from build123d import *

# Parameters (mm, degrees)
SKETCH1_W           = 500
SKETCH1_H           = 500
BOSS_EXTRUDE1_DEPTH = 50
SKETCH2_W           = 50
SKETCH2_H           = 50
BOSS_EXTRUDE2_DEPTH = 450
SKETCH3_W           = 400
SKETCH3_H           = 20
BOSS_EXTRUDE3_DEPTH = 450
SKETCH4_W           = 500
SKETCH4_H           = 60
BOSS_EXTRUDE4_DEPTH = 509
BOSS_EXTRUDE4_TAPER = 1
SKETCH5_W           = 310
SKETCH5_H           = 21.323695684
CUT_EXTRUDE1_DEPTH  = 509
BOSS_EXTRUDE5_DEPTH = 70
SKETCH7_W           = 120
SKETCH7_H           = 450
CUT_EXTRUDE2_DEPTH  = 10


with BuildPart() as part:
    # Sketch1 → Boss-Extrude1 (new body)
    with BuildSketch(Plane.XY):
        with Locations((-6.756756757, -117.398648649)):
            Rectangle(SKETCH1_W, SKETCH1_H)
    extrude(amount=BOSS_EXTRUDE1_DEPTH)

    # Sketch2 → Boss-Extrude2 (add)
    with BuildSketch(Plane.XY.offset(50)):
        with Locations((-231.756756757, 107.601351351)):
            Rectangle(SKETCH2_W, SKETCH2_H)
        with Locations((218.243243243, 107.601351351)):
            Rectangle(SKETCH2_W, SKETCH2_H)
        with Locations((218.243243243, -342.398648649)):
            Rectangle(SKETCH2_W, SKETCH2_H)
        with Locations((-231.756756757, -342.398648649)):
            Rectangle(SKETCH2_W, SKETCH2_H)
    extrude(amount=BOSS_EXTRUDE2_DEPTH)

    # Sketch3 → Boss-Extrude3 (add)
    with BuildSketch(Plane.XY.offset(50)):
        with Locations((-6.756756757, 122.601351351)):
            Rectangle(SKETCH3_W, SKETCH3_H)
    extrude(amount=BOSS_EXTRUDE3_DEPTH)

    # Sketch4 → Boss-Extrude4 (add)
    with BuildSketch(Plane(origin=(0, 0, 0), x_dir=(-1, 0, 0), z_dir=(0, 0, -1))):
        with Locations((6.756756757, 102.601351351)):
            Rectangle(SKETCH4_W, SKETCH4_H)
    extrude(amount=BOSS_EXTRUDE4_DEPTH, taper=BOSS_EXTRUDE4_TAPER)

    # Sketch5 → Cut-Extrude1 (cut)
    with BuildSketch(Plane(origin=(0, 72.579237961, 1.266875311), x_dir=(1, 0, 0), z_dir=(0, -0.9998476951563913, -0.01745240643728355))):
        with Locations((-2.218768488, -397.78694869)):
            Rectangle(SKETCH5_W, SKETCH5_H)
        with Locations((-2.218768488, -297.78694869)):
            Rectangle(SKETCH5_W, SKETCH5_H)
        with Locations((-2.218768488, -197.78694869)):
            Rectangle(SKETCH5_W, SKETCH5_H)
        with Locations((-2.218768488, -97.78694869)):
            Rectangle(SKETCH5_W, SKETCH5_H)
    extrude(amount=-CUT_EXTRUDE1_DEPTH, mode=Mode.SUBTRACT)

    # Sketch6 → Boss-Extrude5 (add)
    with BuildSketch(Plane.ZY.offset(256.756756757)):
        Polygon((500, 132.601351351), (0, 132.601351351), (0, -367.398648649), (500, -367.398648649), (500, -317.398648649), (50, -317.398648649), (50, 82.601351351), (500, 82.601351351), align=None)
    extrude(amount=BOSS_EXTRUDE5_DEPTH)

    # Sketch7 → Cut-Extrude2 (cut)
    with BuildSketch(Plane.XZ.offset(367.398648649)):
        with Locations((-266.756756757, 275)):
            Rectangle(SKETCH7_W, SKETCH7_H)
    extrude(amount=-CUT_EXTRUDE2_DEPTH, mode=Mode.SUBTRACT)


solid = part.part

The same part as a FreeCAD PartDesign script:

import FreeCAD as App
import Part
import Sketcher
from FreeCAD import Vector
Q = App.Units.Quantity


def add_polygon(sketch, points):
    """Adds a closed chain of lines whose ends are joined by coincident constraints."""
    first, n = sketch.GeometryCount, len(points)
    for a, b in zip(points, points[1:] + points[:1]):
        sketch.addGeometry(Part.LineSegment(App.Vector(*a, 0), App.Vector(*b, 0)), False)
    for i in range(n):
        sketch.addConstraint(Sketcher.Constraint("Coincident", first + i, 2, first + (i + 1) % n, 1))

doc = App.newDocument("Part")
body = doc.addObject("PartDesign::Body", "Body")

sketch1 = body.newObject("Sketcher::SketchObject", "Sketch")
sketch1.AttachmentSupport = (doc.getObject("XY_Plane"), [""])
sketch1.MapMode = "FlatFace"
add_polygon(sketch1, [(-257, 133), (-257, -367), (243, -367), (243, 133)])
sketch1.addConstraint(Sketcher.Constraint("Vertical", 0))
sketch1.addConstraint(Sketcher.Constraint("Horizontal", 1))
sketch1.addConstraint(Sketcher.Constraint("Vertical", 2))
sketch1.addConstraint(Sketcher.Constraint("Horizontal", 3))
sketch1.addConstraint(Sketcher.Constraint("Equal", 3, 0))
sketch1.addConstraint(Sketcher.Constraint("DistanceX", 1, 1, 1, 2, Q("500 mm")))
sketch1.addConstraint(Sketcher.Constraint("DistanceY", 0, 2, -1, 1, Q("367.398649 mm")))
sketch1.addConstraint(Sketcher.Constraint("DistanceX", 0, 2, -1, 1, Q("256.756757 mm")))
pad1 = body.newObject("PartDesign::Pad", "Pad")
pad1.Profile = sketch1
pad1.Length = 50

sketch2 = body.newObject("Sketcher::SketchObject", "Sketch001")
sketch2.AttachmentSupport = (doc.getObject("XY_Plane"), [""])
sketch2.MapMode = "FlatFace"
sketch2.AttachmentOffset = App.Placement(Vector(0, 0, 50), App.Rotation())
add_polygon(sketch2, [(-257, 133), (-257, 83), (-207, 83), (-207, 133)])
add_polygon(sketch2, [(193, 133), (193, 83), (243, 83), (243, 133)])
add_polygon(sketch2, [(193, -317), (193, -367), (243, -367), (243, -317)])
add_polygon(sketch2, [(-257, -317), (-257, -367), (-207, -367), (-207, -317)])
sketch2.addConstraint(Sketcher.Constraint("Vertical", 0))
sketch2.addConstraint(Sketcher.Constraint("Horizontal", 1))
sketch2.addConstraint(Sketcher.Constraint("Vertical", 2))
sketch2.addConstraint(Sketcher.Constraint("Horizontal", 3))
sketch2.addConstraint(Sketcher.Constraint("Vertical", 4))
sketch2.addConstraint(Sketcher.Constraint("Horizontal", 5))
sketch2.addConstraint(Sketcher.Constraint("Vertical", 6))
sketch2.addConstraint(Sketcher.Constraint("Horizontal", 7))
sketch2.addConstraint(Sketcher.Constraint("Vertical", 8))
sketch2.addConstraint(Sketcher.Constraint("Horizontal", 9))
sketch2.addConstraint(Sketcher.Constraint("Vertical", 10))
sketch2.addConstraint(Sketcher.Constraint("Horizontal", 11))
sketch2.addConstraint(Sketcher.Constraint("Vertical", 12))
sketch2.addConstraint(Sketcher.Constraint("Horizontal", 13))
sketch2.addConstraint(Sketcher.Constraint("Vertical", 14))
sketch2.addConstraint(Sketcher.Constraint("Horizontal", 15))
sketch2.addConstraint(Sketcher.Constraint("Horizontal", 1, 2, 4, 2))
sketch2.addConstraint(Sketcher.Constraint("Horizontal", 3, 2, 6, 2))
sketch2.addConstraint(Sketcher.Constraint("Horizontal", 9, 2, 12, 2))
sketch2.addConstraint(Sketcher.Constraint("Horizontal", 11, 2, 14, 2))
sketch2.addConstraint(Sketcher.Constraint("Vertical", 7, 2, 8, 2))
sketch2.addConstraint(Sketcher.Constraint("Vertical", 6, 2, 9, 2))
sketch2.addConstraint(Sketcher.Constraint("Vertical", 3, 2, 12, 2))
sketch2.addConstraint(Sketcher.Constraint("Vertical", 2, 2, 13, 2))
sketch2.addConstraint(Sketcher.Constraint("Equal", 3, 5))
sketch2.addConstraint(Sketcher.Constraint("Equal", 15, 0))
sketch2.addConstraint(Sketcher.Constraint("Equal", 6, 8))
sketch2.addConstraint(Sketcher.Constraint("DistanceX", 1, 1, 1, 2, Q("50 mm")))
sketch2.addConstraint(Sketcher.Constraint("DistanceX", 1, 2, 4, 2, Q("400 mm")))
sketch2.addConstraint(Sketcher.Constraint("DistanceY", 8, 2, 4, 2, Q("450 mm")))
sketch2.addConstraint(Sketcher.Constraint("DistanceY", -1, 1, 0, 2, Q("82.601351 mm")))
sketch2.addConstraint(Sketcher.Constraint("DistanceX", 0, 2, -1, 1, Q("256.756757 mm")))
pad2 = body.newObject("PartDesign::Pad", "Pad001")
pad2.Profile = sketch2
pad2.Length = 450

sketch3 = body.newObject("Sketcher::SketchObject", "Sketch002")
sketch3.AttachmentSupport = (doc.getObject("XY_Plane"), [""])
sketch3.MapMode = "FlatFace"
sketch3.AttachmentOffset = App.Placement(Vector(0, 0, 50), App.Rotation())
add_polygon(sketch3, [(-207, 133), (-207, 113), (193, 113), (193, 133)])
sketch3.addConstraint(Sketcher.Constraint("Vertical", 0))
sketch3.addConstraint(Sketcher.Constraint("Horizontal", 1))
sketch3.addConstraint(Sketcher.Constraint("Vertical", 2))
sketch3.addConstraint(Sketcher.Constraint("Horizontal", 3))
sketch3.addConstraint(Sketcher.Constraint("DistanceX", 1, 1, 1, 2, Q("400 mm")))
sketch3.addConstraint(Sketcher.Constraint("DistanceY", 0, 2, 0, 1, Q("20 mm")))
sketch3.addConstraint(Sketcher.Constraint("DistanceY", -1, 1, 0, 2, Q("112.601351 mm")))
sketch3.addConstraint(Sketcher.Constraint("DistanceX", 0, 2, -1, 1, Q("206.756757 mm")))
pad3 = body.newObject("PartDesign::Pad", "Pad002")
pad3.Profile = sketch3
pad3.Length = 450

sketch4 = body.newObject("Sketcher::SketchObject", "Sketch003")
sketch4.AttachmentSupport = (doc.getObject("XY_Plane"), [""])
sketch4.MapMode = "FlatFace"
add_polygon(sketch4, [(243, 133), (243, 73), (-257, 73), (-257, 133)])
sketch4.addConstraint(Sketcher.Constraint("Vertical", 0))
sketch4.addConstraint(Sketcher.Constraint("Horizontal", 1))
sketch4.addConstraint(Sketcher.Constraint("Vertical", 2))
sketch4.addConstraint(Sketcher.Constraint("Horizontal", 3))
sketch4.addConstraint(Sketcher.Constraint("DistanceX", 1, 2, 1, 1, Q("500 mm")))
sketch4.addConstraint(Sketcher.Constraint("DistanceY", 0, 2, 0, 1, Q("60 mm")))
sketch4.addConstraint(Sketcher.Constraint("DistanceY", -1, 1, 0, 2, Q("72.601351 mm")))
sketch4.addConstraint(Sketcher.Constraint("DistanceX", -1, 1, 0, 2, Q("243.243243 mm")))
pad4 = body.newObject("PartDesign::Pad", "Pad003")
pad4.Profile = sketch4
pad4.Length = 509
pad4.Reversed = True
pad4.TaperAngle = -1

sketch5 = body.newObject("Sketcher::SketchObject", "Sketch004")
sketch5.Placement = App.Placement(Vector(0, 72.579238, 1.266875), App.Rotation(Vector(1, 0, 0), Vector(0, -0.017452406, 0.999847695), Vector(0, -0.999847695, -0.017452406), "ZXY"))
add_polygon(sketch5, [(-157, -387), (-157, -408), (153, -408), (153, -387)])
add_polygon(sketch5, [(-157, -287), (-157, -308), (153, -308), (153, -287)])
add_polygon(sketch5, [(-157, -187), (-157, -208), (153, -208), (153, -187)])
add_polygon(sketch5, [(-157, -87), (-157, -108), (153, -108), (153, -87)])
sketch5.addConstraint(Sketcher.Constraint("Vertical", 0))
sketch5.addConstraint(Sketcher.Constraint("Horizontal", 1))
sketch5.addConstraint(Sketcher.Constraint("Vertical", 2))
sketch5.addConstraint(Sketcher.Constraint("Horizontal", 3))
sketch5.addConstraint(Sketcher.Constraint("Vertical", 4))
sketch5.addConstraint(Sketcher.Constraint("Horizontal", 5))
sketch5.addConstraint(Sketcher.Constraint("Vertical", 6))
sketch5.addConstraint(Sketcher.Constraint("Horizontal", 7))
sketch5.addConstraint(Sketcher.Constraint("Vertical", 8))
sketch5.addConstraint(Sketcher.Constraint("Horizontal", 9))
sketch5.addConstraint(Sketcher.Constraint("Vertical", 10))
sketch5.addConstraint(Sketcher.Constraint("Horizontal", 11))
sketch5.addConstraint(Sketcher.Constraint("Vertical", 12))
sketch5.addConstraint(Sketcher.Constraint("Horizontal", 13))
sketch5.addConstraint(Sketcher.Constraint("Vertical", 14))
sketch5.addConstraint(Sketcher.Constraint("Horizontal", 15))
sketch5.addConstraint(Sketcher.Constraint("Vertical", 3, 2, 4, 2))
sketch5.addConstraint(Sketcher.Constraint("Vertical", 2, 2, 5, 2))
sketch5.addConstraint(Sketcher.Constraint("Vertical", 7, 2, 8, 2))
sketch5.addConstraint(Sketcher.Constraint("Vertical", 6, 2, 9, 2))
sketch5.addConstraint(Sketcher.Constraint("Vertical", 11, 2, 12, 2))
sketch5.addConstraint(Sketcher.Constraint("Vertical", 10, 2, 13, 2))
sketch5.addConstraint(Sketcher.Constraint("Equal", 2, 4))
sketch5.addConstraint(Sketcher.Constraint("Equal", 6, 8))
sketch5.addConstraint(Sketcher.Constraint("Equal", 10, 12))
sketch5.addConstraint(Sketcher.Constraint("DistanceX", 1, 1, 1, 2, Q("310 mm")))
sketch5.addConstraint(Sketcher.Constraint("DistanceY", 0, 2, 4, 2, Q("100 mm")))
sketch5.addConstraint(Sketcher.Constraint("DistanceY", 4, 2, 8, 2, Q("100 mm")))
sketch5.addConstraint(Sketcher.Constraint("DistanceY", 8, 2, 12, 2, Q("100 mm")))
sketch5.addConstraint(Sketcher.Constraint("DistanceY", 2, 2, -1, 1, Q("387.125101 mm")))
sketch5.addConstraint(Sketcher.Constraint("DistanceY", 0, 2, 0, 1, Q("21.323696 mm")))
sketch5.addConstraint(Sketcher.Constraint("DistanceX", 0, 2, -1, 1, Q("157.218768 mm")))
pocket1 = body.newObject("PartDesign::Pocket", "Pocket")
pocket1.Profile = sketch5
pocket1.Length = 509

sketch6 = body.newObject("Sketcher::SketchObject", "Sketch005")
sketch6.AttachmentSupport = (doc.getObject("YZ_Plane"), [""])
sketch6.MapMode = "FlatFace"
sketch6.AttachmentOffset = App.Placement(Vector(0, 0, -256.756757), App.Rotation())
add_polygon(sketch6, [(133, 500), (133, 0), (-367, 0), (-367, 500), (-317, 500), (-317, 50), (83, 50), (83, 500)])
sketch6.addConstraint(Sketcher.Constraint("Vertical", 0))
sketch6.addConstraint(Sketcher.Constraint("Horizontal", 1))
sketch6.addConstraint(Sketcher.Constraint("Vertical", 2))
sketch6.addConstraint(Sketcher.Constraint("Horizontal", 3))
sketch6.addConstraint(Sketcher.Constraint("Vertical", 4))
sketch6.addConstraint(Sketcher.Constraint("Horizontal", 5))
sketch6.addConstraint(Sketcher.Constraint("Vertical", 6))
sketch6.addConstraint(Sketcher.Constraint("Horizontal", 7))
sketch6.addConstraint(Sketcher.Constraint("PointOnObject", 0, 2, -1))
sketch6.addConstraint(Sketcher.Constraint("Horizontal", 3, 2, 6, 2))
sketch6.addConstraint(Sketcher.Constraint("Equal", 3, 7))
sketch6.addConstraint(Sketcher.Constraint("Equal", 1, 0))
sketch6.addConstraint(Sketcher.Constraint("DistanceX", 1, 2, 1, 1, Q("500 mm")))
sketch6.addConstraint(Sketcher.Constraint("DistanceX", 3, 1, 3, 2, Q("50 mm")))
sketch6.addConstraint(Sketcher.Constraint("DistanceY", 4, 2, 4, 1, Q("450 mm")))
sketch6.addConstraint(Sketcher.Constraint("DistanceX", -1, 1, 0, 2, Q("132.601351 mm")))
pad5 = body.newObject("PartDesign::Pad", "Pad004")
pad5.Profile = sketch6
pad5.Length = 70
pad5.Reversed = True

sketch7 = body.newObject("Sketcher::SketchObject", "Sketch006")
sketch7.AttachmentSupport = (doc.getObject("XZ_Plane"), [""])
sketch7.MapMode = "FlatFace"
sketch7.AttachmentOffset = App.Placement(Vector(0, 0, 367.398649), App.Rotation())
add_polygon(sketch7, [(-327, 500), (-327, 50), (-207, 50), (-207, 500)])
sketch7.addConstraint(Sketcher.Constraint("Vertical", 0))
sketch7.addConstraint(Sketcher.Constraint("Horizontal", 1))
sketch7.addConstraint(Sketcher.Constraint("Vertical", 2))
sketch7.addConstraint(Sketcher.Constraint("Horizontal", 3))
sketch7.addConstraint(Sketcher.Constraint("DistanceX", 1, 1, 1, 2, Q("120 mm")))
sketch7.addConstraint(Sketcher.Constraint("DistanceY", 0, 2, 0, 1, Q("450 mm")))
sketch7.addConstraint(Sketcher.Constraint("DistanceY", -1, 1, 0, 2, Q("50 mm")))
sketch7.addConstraint(Sketcher.Constraint("DistanceX", 0, 2, -1, 1, Q("326.756757 mm")))
pocket2 = body.newObject("PartDesign::Pocket", "Pocket001")
pocket2.Profile = sketch7
pocket2.Length = 10

doc.recompute()
